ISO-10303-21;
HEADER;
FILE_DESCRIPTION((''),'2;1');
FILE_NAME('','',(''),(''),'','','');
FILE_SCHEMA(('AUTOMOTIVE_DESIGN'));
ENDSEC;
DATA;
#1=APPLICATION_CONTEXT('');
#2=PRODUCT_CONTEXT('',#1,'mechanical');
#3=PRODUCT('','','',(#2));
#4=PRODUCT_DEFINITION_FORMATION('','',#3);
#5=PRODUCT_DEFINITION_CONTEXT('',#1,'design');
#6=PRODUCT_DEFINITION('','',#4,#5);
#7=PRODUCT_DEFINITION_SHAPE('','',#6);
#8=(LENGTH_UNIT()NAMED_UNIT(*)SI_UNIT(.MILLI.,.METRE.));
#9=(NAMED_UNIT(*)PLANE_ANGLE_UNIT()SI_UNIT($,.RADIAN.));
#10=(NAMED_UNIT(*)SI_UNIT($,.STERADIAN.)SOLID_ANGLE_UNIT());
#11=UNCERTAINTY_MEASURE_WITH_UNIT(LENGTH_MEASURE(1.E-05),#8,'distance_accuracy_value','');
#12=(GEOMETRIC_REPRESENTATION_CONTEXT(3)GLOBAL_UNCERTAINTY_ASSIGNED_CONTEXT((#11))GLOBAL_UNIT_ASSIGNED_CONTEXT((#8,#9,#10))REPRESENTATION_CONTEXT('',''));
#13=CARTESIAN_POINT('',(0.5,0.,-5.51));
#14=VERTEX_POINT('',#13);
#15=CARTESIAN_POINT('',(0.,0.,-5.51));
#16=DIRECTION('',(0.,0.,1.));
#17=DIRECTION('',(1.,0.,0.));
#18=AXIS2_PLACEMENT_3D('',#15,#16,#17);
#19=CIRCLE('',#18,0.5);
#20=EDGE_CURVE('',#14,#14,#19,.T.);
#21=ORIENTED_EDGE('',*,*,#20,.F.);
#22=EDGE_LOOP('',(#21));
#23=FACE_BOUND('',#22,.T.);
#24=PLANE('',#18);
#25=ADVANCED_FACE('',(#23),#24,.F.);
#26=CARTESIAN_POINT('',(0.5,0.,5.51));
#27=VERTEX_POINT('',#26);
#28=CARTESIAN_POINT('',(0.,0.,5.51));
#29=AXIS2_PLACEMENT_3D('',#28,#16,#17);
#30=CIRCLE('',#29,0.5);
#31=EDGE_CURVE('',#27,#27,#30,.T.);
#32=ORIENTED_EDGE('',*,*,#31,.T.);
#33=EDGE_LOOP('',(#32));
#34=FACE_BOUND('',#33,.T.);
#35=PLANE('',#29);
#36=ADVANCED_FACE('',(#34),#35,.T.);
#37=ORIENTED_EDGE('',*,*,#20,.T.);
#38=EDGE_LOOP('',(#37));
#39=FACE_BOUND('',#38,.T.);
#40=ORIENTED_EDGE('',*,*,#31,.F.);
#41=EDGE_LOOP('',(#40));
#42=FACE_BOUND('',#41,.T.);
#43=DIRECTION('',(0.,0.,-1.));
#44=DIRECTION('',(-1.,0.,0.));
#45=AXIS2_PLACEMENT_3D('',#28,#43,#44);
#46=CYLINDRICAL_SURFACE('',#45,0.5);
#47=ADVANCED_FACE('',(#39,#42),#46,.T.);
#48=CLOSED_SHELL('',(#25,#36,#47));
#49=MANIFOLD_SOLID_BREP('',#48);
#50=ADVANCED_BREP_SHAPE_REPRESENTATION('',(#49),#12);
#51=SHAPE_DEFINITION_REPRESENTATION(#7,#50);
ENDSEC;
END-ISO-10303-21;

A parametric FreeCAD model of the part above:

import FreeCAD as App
import Part
import Sketcher
from FreeCAD import Vector
Q = App.Units.Quantity

doc = App.newDocument("Part")
body = doc.addObject("PartDesign::Body", "Body")

# Sketch on XY plane
sketch1 = doc.addObject("Sketcher::SketchObject", "Sketch")
body.addObject(sketch1)
sketch1.AttachmentSupport = (doc.XY_Plane, [""])
sketch1.MapMode = "FlatFace"
sketch1.addGeometry(Part.Circle(Vector(0, 0, 0), Vector(0, 0, 1), 0.5), False)
sketch1.addConstraint([
    Sketcher.Constraint("Coincident", 0, 3, -1, 1),
    Sketcher.Constraint("Diameter", 0, Q("1 mm")),
])
pad1 = doc.addObject("PartDesign::Pad", "Pad")
body.addObject(pad1)
pad1.Profile = sketch1
pad1.Length = 11.02
pad1.Midplane = True

doc.recompute()
